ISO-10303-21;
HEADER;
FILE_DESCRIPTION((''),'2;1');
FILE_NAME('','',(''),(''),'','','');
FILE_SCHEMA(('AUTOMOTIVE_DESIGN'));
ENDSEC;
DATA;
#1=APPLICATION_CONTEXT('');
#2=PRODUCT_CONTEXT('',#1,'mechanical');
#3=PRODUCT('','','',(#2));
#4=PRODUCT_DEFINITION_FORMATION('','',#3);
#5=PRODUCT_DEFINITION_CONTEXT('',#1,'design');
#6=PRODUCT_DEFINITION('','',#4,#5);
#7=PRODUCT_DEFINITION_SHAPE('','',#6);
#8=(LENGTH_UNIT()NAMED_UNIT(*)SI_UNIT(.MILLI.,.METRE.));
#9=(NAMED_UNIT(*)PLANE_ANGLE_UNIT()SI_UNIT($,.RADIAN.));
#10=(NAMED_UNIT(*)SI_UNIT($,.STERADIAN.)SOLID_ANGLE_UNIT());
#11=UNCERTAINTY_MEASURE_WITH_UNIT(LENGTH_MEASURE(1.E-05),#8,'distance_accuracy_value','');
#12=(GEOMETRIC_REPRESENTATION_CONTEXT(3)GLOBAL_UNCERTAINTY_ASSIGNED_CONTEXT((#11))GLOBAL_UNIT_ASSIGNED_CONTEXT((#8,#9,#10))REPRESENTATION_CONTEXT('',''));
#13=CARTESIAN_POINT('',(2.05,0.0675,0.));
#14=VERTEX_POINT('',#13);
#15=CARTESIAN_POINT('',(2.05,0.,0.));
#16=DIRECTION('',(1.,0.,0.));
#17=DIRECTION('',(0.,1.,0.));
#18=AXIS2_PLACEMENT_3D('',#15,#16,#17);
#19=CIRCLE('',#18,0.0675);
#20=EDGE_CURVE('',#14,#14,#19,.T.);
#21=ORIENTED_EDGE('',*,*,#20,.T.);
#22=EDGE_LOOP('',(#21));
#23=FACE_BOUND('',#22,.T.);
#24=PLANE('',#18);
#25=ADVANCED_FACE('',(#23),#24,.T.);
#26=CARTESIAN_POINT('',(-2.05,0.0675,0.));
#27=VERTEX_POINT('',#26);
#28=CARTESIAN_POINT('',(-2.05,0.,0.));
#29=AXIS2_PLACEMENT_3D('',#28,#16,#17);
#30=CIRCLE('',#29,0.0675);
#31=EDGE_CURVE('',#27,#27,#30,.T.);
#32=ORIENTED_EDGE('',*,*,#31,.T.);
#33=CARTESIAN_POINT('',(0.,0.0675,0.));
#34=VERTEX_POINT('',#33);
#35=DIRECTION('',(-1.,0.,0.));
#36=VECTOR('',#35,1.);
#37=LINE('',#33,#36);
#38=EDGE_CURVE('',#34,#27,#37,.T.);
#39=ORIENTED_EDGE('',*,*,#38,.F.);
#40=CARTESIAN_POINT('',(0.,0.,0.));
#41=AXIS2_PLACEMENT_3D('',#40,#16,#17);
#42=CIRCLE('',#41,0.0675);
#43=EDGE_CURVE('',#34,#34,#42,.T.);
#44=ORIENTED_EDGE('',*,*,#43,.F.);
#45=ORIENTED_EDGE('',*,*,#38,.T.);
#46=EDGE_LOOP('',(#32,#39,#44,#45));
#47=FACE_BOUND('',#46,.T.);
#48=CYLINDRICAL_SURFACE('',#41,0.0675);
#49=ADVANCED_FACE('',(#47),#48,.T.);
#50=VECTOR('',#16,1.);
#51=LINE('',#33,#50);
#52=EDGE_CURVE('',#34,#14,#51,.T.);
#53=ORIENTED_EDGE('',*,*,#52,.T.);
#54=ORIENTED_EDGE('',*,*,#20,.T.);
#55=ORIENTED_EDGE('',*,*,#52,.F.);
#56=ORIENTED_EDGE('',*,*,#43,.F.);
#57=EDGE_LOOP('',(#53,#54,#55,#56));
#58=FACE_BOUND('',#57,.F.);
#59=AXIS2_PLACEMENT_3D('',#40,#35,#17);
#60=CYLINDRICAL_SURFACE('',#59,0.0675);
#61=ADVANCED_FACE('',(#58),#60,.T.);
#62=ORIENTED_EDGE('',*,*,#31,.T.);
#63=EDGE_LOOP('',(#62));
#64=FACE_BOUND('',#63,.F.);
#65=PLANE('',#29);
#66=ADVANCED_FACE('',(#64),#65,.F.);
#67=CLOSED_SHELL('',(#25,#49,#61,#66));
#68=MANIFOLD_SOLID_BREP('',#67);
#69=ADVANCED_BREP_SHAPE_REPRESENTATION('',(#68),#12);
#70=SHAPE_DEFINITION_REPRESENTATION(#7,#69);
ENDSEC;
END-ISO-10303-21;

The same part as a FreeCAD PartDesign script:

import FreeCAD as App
import Part
import Sketcher
from FreeCAD import Vector
Q = App.Units.Quantity

doc = App.newDocument("Part")
body = doc.addObject("PartDesign::Body", "Body")

# Sketch on YZ plane
sketch1 = doc.addObject("Sketcher::SketchObject", "Sketch")
body.addObject(sketch1)
sketch1.AttachmentSupport = (doc.YZ_Plane, [""])
sketch1.MapMode = "FlatFace"
sketch1.addGeometry(Part.Circle(Vector(0, 0, 0), Vector(0, 0, 1), 0.0675), False)
sketch1.addConstraint([
    Sketcher.Constraint("Coincident", 0, 3, -1, 1),
    Sketcher.Constraint("Diameter", 0, Q("0.135 mm")),
])
pad1 = doc.addObject("PartDesign::Pad", "Pad")
body.addObject(pad1)
pad1.Profile = sketch1
pad1.Length = 4.1
pad1.Midplane = True

doc.recompute()
